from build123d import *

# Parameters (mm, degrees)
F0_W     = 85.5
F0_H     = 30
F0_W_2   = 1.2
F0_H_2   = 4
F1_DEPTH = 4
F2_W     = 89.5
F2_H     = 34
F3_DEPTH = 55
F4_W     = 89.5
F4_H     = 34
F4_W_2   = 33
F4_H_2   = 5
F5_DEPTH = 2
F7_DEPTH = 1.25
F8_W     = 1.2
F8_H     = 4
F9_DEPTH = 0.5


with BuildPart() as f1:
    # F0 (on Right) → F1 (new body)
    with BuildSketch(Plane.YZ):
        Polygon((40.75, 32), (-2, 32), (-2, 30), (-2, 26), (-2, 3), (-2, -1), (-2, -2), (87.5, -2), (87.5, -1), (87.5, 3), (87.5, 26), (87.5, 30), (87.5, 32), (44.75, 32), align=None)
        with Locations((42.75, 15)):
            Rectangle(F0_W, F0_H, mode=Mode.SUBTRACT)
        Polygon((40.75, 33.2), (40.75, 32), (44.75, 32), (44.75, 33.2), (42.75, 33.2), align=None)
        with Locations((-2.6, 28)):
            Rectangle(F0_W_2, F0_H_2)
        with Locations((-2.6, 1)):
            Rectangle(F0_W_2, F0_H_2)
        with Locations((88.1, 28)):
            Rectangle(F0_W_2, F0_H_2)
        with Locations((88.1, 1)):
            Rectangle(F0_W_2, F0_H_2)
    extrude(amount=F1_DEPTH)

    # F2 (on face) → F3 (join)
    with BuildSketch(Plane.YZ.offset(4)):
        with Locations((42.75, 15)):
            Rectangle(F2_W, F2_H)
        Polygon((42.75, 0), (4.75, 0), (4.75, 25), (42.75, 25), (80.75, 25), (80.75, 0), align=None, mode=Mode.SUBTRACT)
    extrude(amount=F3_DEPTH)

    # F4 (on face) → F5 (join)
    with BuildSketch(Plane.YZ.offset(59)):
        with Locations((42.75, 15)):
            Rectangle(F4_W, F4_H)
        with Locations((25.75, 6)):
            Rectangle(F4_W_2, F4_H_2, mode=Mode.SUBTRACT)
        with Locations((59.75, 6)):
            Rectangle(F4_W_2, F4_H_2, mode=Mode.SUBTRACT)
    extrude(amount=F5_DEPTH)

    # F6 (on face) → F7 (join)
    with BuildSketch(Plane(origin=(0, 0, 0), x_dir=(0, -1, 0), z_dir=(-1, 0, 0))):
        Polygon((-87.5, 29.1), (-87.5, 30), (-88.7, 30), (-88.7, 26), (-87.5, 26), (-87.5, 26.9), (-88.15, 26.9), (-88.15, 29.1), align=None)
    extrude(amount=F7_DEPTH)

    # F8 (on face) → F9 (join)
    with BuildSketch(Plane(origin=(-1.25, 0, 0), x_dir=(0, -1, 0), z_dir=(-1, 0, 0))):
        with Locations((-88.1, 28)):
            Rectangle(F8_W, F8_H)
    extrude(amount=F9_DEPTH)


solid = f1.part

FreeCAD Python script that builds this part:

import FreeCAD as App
import Part
import Sketcher

V = App.Vector

doc = App.newDocument("Part")
body = doc.addObject("PartDesign::Body", "Body")

# Sketch on YZ plane
sketch1 = doc.addObject("Sketcher::SketchObject", "Sketch")
body.addObject(sketch1)
sketch1.AttachmentSupport = (doc.YZ_Plane, [""])
sketch1.MapMode = "FlatFace"
sketch1.addGeometry([
    Part.LineSegment(V(-2, 32, 0), V(-2, 30, 0)),  # 0
    Part.LineSegment(V(-2, 30, 0), V(-3.2, 30, 0)),  # 1
    Part.LineSegment(V(-3.2, 30, 0), V(-3.2, 26, 0)),  # 2
    Part.LineSegment(V(-3.2, 26, 0), V(-2, 26, 0)),  # 3
    Part.LineSegment(V(-2, 26, 0), V(-2, 3, 0)),  # 4
    Part.LineSegment(V(-2, 3, 0), V(-3.2, 3, 0)),  # 5
    Part.LineSegment(V(-3.2, 3, 0), V(-3.2, -1, 0)),  # 6
    Part.LineSegment(V(-3.2, -1, 0), V(-2, -1, 0)),  # 7
    Part.LineSegment(V(-2, -1, 0), V(-2, -2, 0)),  # 8
    Part.LineSegment(V(-2, -2, 0), V(87.5, -2, 0)),  # 9
    Part.LineSegment(V(87.5, -2, 0), V(87.5, -1, 0)),  # 10
    Part.LineSegment(V(87.5, -1, 0), V(88.7, -1, 0)),  # 11
    Part.LineSegment(V(88.7, -1, 0), V(88.7, 3, 0)),  # 12
    Part.LineSegment(V(88.7, 3, 0), V(87.5, 3, 0)),  # 13
    Part.LineSegment(V(87.5, 3, 0), V(87.5, 26, 0)),  # 14
    Part.LineSegment(V(87.5, 26, 0), V(88.7, 26, 0)),  # 15
    Part.LineSegment(V(88.7, 26, 0), V(88.7, 30, 0)),  # 16
    Part.LineSegment(V(88.7, 30, 0), V(87.5, 30, 0)),  # 17
    Part.LineSegment(V(87.5, 30, 0), V(87.5, 32, 0)),  # 18
    Part.LineSegment(V(87.5, 32, 0), V(44.8, 32, 0)),  # 19
    Part.LineSegment(V(44.8, 32, 0), V(44.8, 33.2, 0)),  # 20
    Part.LineSegment(V(44.8, 33.2, 0), V(40.8, 33.2, 0)),  # 21
    Part.LineSegment(V(40.8, 33.2, 0), V(40.8, 32, 0)),  # 22
    Part.LineSegment(V(40.8, 32, 0), V(-2, 32, 0)),  # 23
    Part.LineSegment(V(85.5, 0, 0), V(0, 0, 0)),  # 24
    Part.LineSegment(V(0, 0, 0), V(0, 30, 0)),  # 25
    Part.LineSegment(V(0, 30, 0), V(85.5, 30, 0)),  # 26
    Part.LineSegment(V(85.5, 30, 0), V(85.5, 0, 0)),  # 27
], False)
sketch1.addConstraint([
    Sketcher.Constraint("Coincident", 0, 2, 1, 1),
    Sketcher.Constraint("Coincident", 1, 2, 2, 1),
    Sketcher.Constraint("Coincident", 2, 2, 3, 1),
    Sketcher.Constraint("Coincident", 3, 2, 4, 1),
    Sketcher.Constraint("Coincident", 4, 2, 5, 1),
    Sketcher.Constraint("Coincident", 5, 2, 6, 1),
    Sketcher.Constraint("Coincident", 6, 2, 7, 1),
    Sketcher.Constraint("Coincident", 7, 2, 8, 1),
    Sketcher.Constraint("Coincident", 8, 2, 9, 1),
    Sketcher.Constraint("Coincident", 9, 2, 10, 1),
    Sketcher.Constraint("Coincident", 10, 2, 11, 1),
    Sketcher.Constraint("Coincident", 11, 2, 12, 1),
    Sketcher.Constraint("Coincident", 12, 2, 13, 1),
    Sketcher.Constraint("Coincident", 13, 2, 14, 1),
    Sketcher.Constraint("Coincident", 14, 2, 15, 1),
    Sketcher.Constraint("Coincident", 15, 2, 16, 1),
    Sketcher.Constraint("Coincident", 16, 2, 17, 1),
    Sketcher.Constraint("Coincident", 17, 2, 18, 1),
    Sketcher.Constraint("Coincident", 18, 2, 19, 1),
    Sketcher.Constraint("Coincident", 19, 2, 20, 1),
    Sketcher.Constraint("Coincident", 20, 2, 21, 1),
    Sketcher.Constraint("Coincident", 21, 2, 22, 1),
    Sketcher.Constraint("Coincident", 22, 2, 23, 1),
    Sketcher.Constraint("Coincident", 23, 2, 0, 1),
    Sketcher.Constraint("Coincident", 24, 2, 25, 1),
    Sketcher.Constraint("Coincident", 25, 2, 26, 1),
    Sketcher.Constraint("Coincident", 26, 2, 27, 1),
    Sketcher.Constraint("Coincident", 27, 2, 24, 1),
    Sketcher.Constraint("Vertical", 0),
    Sketcher.Constraint("Horizontal", 1),
    Sketcher.Constraint("Vertical", 2),
    Sketcher.Constraint("Horizontal", 3),
    Sketcher.Constraint("Vertical", 4),
    Sketcher.Constraint("Horizontal", 5),
    Sketcher.Constraint("Vertical", 6),
    Sketcher.Constraint("Horizontal", 7),
    Sketcher.Constraint("Vertical", 8),
    Sketcher.Constraint("Horizontal", 9),
    Sketcher.Constraint("Vertical", 10),
    Sketcher.Constraint("Horizontal", 11),
    Sketcher.Constraint("Vertical", 12),
    Sketcher.Constraint("Horizontal", 13),
    Sketcher.Constraint("Vertical", 14),
    Sketcher.Constraint("Horizontal", 15),
    Sketcher.Constraint("Vertical", 16),
    Sketcher.Constraint("Horizontal", 17),
    Sketcher.Constraint("Vertical", 18),
    Sketcher.Constraint("Horizontal", 19),
    Sketcher.Constraint("Vertical", 20),
    Sketcher.Constraint("Horizontal", 21),
    Sketcher.Constraint("Vertical", 22),
    Sketcher.Constraint("Horizontal", 23),
    Sketcher.Constraint("Horizontal", 24),
    Sketcher.Constraint("Vertical", 25),
    Sketcher.Constraint("Horizontal", 26),
    Sketcher.Constraint("Vertical", 27),
    Sketcher.Constraint("Coincident", 24, 2, -1, 1),
    Sketcher.Constraint("Horizontal", 7, 2, 10, 2),
    Sketcher.Constraint("Horizontal", 5, 2, 12, 2),
    Sketcher.Constraint("Horizontal", 3, 2, 14, 2),
    Sketcher.Constraint("Horizontal", 1, 2, 16, 2),
    Sketcher.Constraint("Horizontal", 19, 2, 22, 2),
    Sketcher.Constraint("Horizontal", 17, 2, 25, 2),
    Sketcher.Constraint("Vertical", 0, 2, 3, 2),
    Sketcher.Constraint("Vertical", 2, 2, 5, 2),
    Sketcher.Constraint("Vertical", 4, 2, 7, 2),
    Sketcher.Constraint("Vertical", 10, 2, 13, 2),
    Sketcher.Constraint("Vertical", 12, 2, 15, 2),
    Sketcher.Constraint("Vertical", 14, 2, 17, 2),
    Sketcher.Constraint("Equal", 7, 11),
    Sketcher.Constraint("Equal", 19, 23),
    Sketcher.Constraint("Equal", 21, 2),
    Sketcher.Constraint("Equal", 2, 6),
    Sketcher.Constraint("Equal", 17, 20),
    Sketcher.Constraint("DistanceX", 21, 2, 21, 1, 4.0),
    Sketcher.Constraint("DistanceY", 0, 2, 0, 1, 2.0),
    Sketcher.Constraint("DistanceY", 4, 2, 4, 1, 23.0),
    Sketcher.Constraint("DistanceY", 8, 2, 8, 1, 1.0),
    Sketcher.Constraint("DistanceY", 25, 1, 25, 2, 30.0),
    Sketcher.Constraint("DistanceX", 1, 2, 1, 1, 1.2),
    Sketcher.Constraint("DistanceX", 9, 1, 9, 2, 89.5),
    Sketcher.Constraint("DistanceX", 24, 2, 24, 1, 85.5),
    Sketcher.Constraint("DistanceX", 0, 2, -1, 1, 2.0),
])
pad1 = doc.addObject("PartDesign::Pad", "Pad")
body.addObject(pad1)
pad1.Profile = sketch1
pad1.Length = 4

# Sketch on YZ plane
sketch2 = doc.addObject("Sketcher::SketchObject", "Sketch001")
body.addObject(sketch2)
sketch2.AttachmentSupport = (doc.YZ_Plane, [""])
sketch2.MapMode = "FlatFace"
sketch2.AttachmentOffset = App.Placement(V(0, 0, 4), App.Rotation())
sketch2.addGeometry([
    Part.LineSegment(V(-2, 32, 0), V(-2, -2, 0)),  # 0
    Part.LineSegment(V(-2, -2, 0), V(88, -2, 0)),  # 1
    Part.LineSegment(V(88, -2, 0), V(88, 32, 0)),  # 2
    Part.LineSegment(V(88, 32, 0), V(-2, 32, 0)),  # 3
    Part.LineSegment(V(81, 0, 0), V(5, 0, 0)),  # 4
    Part.LineSegment(V(5, 0, 0), V(5, 25, 0)),  # 5
    Part.LineSegment(V(5, 25, 0), V(81, 25, 0)),  # 6
    Part.LineSegment(V(81, 25, 0), V(81, 0, 0)),  # 7
], False)
sketch2.addConstraint([
    Sketcher.Constraint("Coincident", 0, 2, 1, 1),
    Sketcher.Constraint("Coincident", 1, 2, 2, 1),
    Sketcher.Constraint("Coincident", 2, 2, 3, 1),
    Sketcher.Constraint("Coincident", 3, 2, 0, 1),
    Sketcher.Constraint("Coincident", 4, 2, 5, 1),
    Sketcher.Constraint("Coincident", 5, 2, 6, 1),
    Sketcher.Constraint("Coincident", 6, 2, 7, 1),
    Sketcher.Constraint("Coincident", 7, 2, 4, 1),
    Sketcher.Constraint("Vertical", 0),
    Sketcher.Constraint("Horizontal", 1),
    Sketcher.Constraint("Vertical", 2),
    Sketcher.Constraint("Horizontal", 3),
    Sketcher.Constraint("Horizontal", 4),
    Sketcher.Constraint("Vertical", 5),
    Sketcher.Constraint("Horizontal", 6),
    Sketcher.Constraint("Vertical", 7),
    Sketcher.Constraint("PointOnObject", 4, 2, -1),
    Sketcher.Constraint("DistanceX", 4, 2, 4, 1, 76.0),
    Sketcher.Constraint("DistanceY", 0, 2, 0, 1, 34.0),
    Sketcher.Constraint("DistanceY", 5, 1, 5, 2, 25.0),
    Sketcher.Constraint("DistanceX", 1, 1, 1, 2, 89.5),
    Sketcher.Constraint("DistanceX", 0, 2, -1, 1, 2.0),
    Sketcher.Constraint("DistanceY", 0, 2, -1, 1, 2.0),
    Sketcher.Constraint("DistanceX", -1, 1, 4, 2, 4.75),
])
pad2 = doc.addObject("PartDesign::Pad", "Pad001")
body.addObject(pad2)
pad2.Profile = sketch2
pad2.Length = 55

# Sketch on YZ plane
sketch3 = doc.addObject("Sketcher::SketchObject", "Sketch002")
body.addObject(sketch3)
sketch3.AttachmentSupport = (doc.YZ_Plane, [""])
sketch3.MapMode = "FlatFace"
sketch3.AttachmentOffset = App.Placement(V(0, 0, 59), App.Rotation())
sketch3.addGeometry([
    Part.LineSegment(V(-2, 32, 0), V(-2, -2, 0)),  # 0
    Part.LineSegment(V(-2, -2, 0), V(88, -2, 0)),  # 1
    Part.LineSegment(V(88, -2, 0), V(88, 32, 0)),  # 2
    Part.LineSegment(V(88, 32, 0), V(-2, 32, 0)),  # 3
    Part.LineSegment(V(42, 4, 0), V(9, 4, 0)),  # 4
    Part.LineSegment(V(9, 4, 0), V(9, 8, 0)),  # 5
    Part.LineSegment(V(9, 8, 0), V(42, 8, 0)),  # 6
    Part.LineSegment(V(42, 8, 0), V(42, 4, 0)),  # 7
    Part.LineSegment(V(76, 4, 0), V(43, 4, 0)),  # 8
    Part.LineSegment(V(43, 4, 0), V(43, 8, 0)),  # 9
    Part.LineSegment(V(43, 8, 0), V(76, 8, 0)),  # 10
    Part.LineSegment(V(76, 8, 0), V(76, 4, 0)),  # 11
], False)
sketch3.addConstraint([
    Sketcher.Constraint("Coincident", 0, 2, 1, 1),
    Sketcher.Constraint("Coincident", 1, 2, 2, 1),
    Sketcher.Constraint("Coincident", 2, 2, 3, 1),
    Sketcher.Constraint("Coincident", 3, 2, 0, 1),
    Sketcher.Constraint("Coincident", 4, 2, 5, 1),
    Sketcher.Constraint("Coincident", 5, 2, 6, 1),
    Sketcher.Constraint("Coincident", 6, 2, 7, 1),
    Sketcher.Constraint("Coincident", 7, 2, 4, 1),
    Sketcher.Constraint("Coincident", 8, 2, 9, 1),
    Sketcher.Constraint("Coincident", 9, 2, 10, 1),
    Sketcher.Constraint("Coincident", 10, 2, 11, 1),
    Sketcher.Constraint("Coincident", 11, 2, 8, 1),
    Sketcher.Constraint("Vertical", 0),
    Sketcher.Constraint("Horizontal", 1),
    Sketcher.Constraint("Vertical", 2),
    Sketcher.Constraint("Horizontal", 3),
    Sketcher.Constraint("Horizontal", 4),
    Sketcher.Constraint("Vertical", 5),
    Sketcher.Constraint("Horizontal", 6),
    Sketcher.Constraint("Vertical", 7),
    Sketcher.Constraint("Horizontal", 8),
    Sketcher.Constraint("Vertical", 9),
    Sketcher.Constraint("Horizontal", 10),
    Sketcher.Constraint("Vertical", 11),
    Sketcher.Constraint("Horizontal", 7, 2, 8, 2),
    Sketcher.Constraint("Horizontal", 6, 2, 9, 2),
    Sketcher.Constraint("Equal", 6, 8),
    Sketcher.Constraint("DistanceX", 4, 2, 4, 1, 33.0),
    Sketcher.Constraint("DistanceY", 0, 2, 0, 1, 34.0),
    Sketcher.Constraint("DistanceY", 5, 1, 5, 2, 5.0),
    Sketcher.Constraint("DistanceX", 1, 1, 1, 2, 89.5),
    Sketcher.Constraint("DistanceX", 0, 2, -1, 1, 2.0),
    Sketcher.Constraint("DistanceY", 0, 2, -1, 1, 2.0),
    Sketcher.Constraint("DistanceX", 7, 2, 8, 2, 1.0),
    Sketcher.Constraint("DistanceY", -1, 1, 4, 2, 3.5),
    Sketcher.Constraint("DistanceX", -1, 1, 4, 2, 9.25),
])
pad3 = doc.addObject("PartDesign::Pad", "Pad002")
body.addObject(pad3)
pad3.Profile = sketch3
pad3.Length = 2

# Sketch on YZ plane
sketch4 = doc.addObject("Sketcher::SketchObject", "Sketch003")
body.addObject(sketch4)
sketch4.AttachmentSupport = (doc.YZ_Plane, [""])
sketch4.MapMode = "FlatFace"
sketch4.addGeometry([
    Part.LineSegment(V(87.5, 29.1, 0), V(87.5, 30, 0)),  # 0
    Part.LineSegment(V(87.5, 30, 0), V(88.7, 30, 0)),  # 1
    Part.LineSegment(V(88.7, 30, 0), V(88.7, 26, 0)),  # 2
    Part.LineSegment(V(88.7, 26, 0), V(87.5, 26, 0)),  # 3
    Part.LineSegment(V(87.5, 26, 0), V(87.5, 26.9, 0)),  # 4
    Part.LineSegment(V(87.5, 26.9, 0), V(88.2, 26.9, 0)),  # 5
    Part.LineSegment(V(88.2, 26.9, 0), V(88.2, 29.1, 0)),  # 6
    Part.LineSegment(V(88.2, 29.1, 0), V(87.5, 29.1, 0)),  # 7
], False)
sketch4.addConstraint([
    Sketcher.Constraint("Coincident", 0, 2, 1, 1),
    Sketcher.Constraint("Coincident", 1, 2, 2, 1),
    Sketcher.Constraint("Coincident", 2, 2, 3, 1),
    Sketcher.Constraint("Coincident", 3, 2, 4, 1),
    Sketcher.Constraint("Coincident", 4, 2, 5, 1),
    Sketcher.Constraint("Coincident", 5, 2, 6, 1),
    Sketcher.Constraint("Coincident", 6, 2, 7, 1),
    Sketcher.Constraint("Coincident", 7, 2, 0, 1),
    Sketcher.Constraint("Vertical", 0),
    Sketcher.Constraint("Horizontal", 1),
    Sketcher.Constraint("Vertical", 2),
    Sketcher.Constraint("Horizontal", 3),
    Sketcher.Constraint("Vertical", 4),
    Sketcher.Constraint("Horizontal", 5),
    Sketcher.Constraint("Vertical", 6),
    Sketcher.Constraint("Horizontal", 7),
    Sketcher.Constraint("Vertical", 0, 2, 3, 2),
    Sketcher.Constraint("Equal", 0, 4),
    Sketcher.Constraint("DistanceY", 2, 2, 2, 1, 4.0),
    Sketcher.Constraint("DistanceX", 1, 1, 1, 2, 1.2),
    Sketcher.Constraint("DistanceY", 0, 1, 0, 2, 0.9),
    Sketcher.Constraint("DistanceY", -1, 1, 0, 2, 30.0),
    Sketcher.Constraint("DistanceX", 5, 1, 5, 2, 0.65),
    Sketcher.Constraint("DistanceX", -1, 1, 0, 2, 87.5),
])
pad4 = doc.addObject("PartDesign::Pad", "Pad003")
body.addObject(pad4)
pad4.Profile = sketch4
pad4.Length = 1.25
pad4.Reversed = True

# Sketch on YZ plane
sketch5 = doc.addObject("Sketcher::SketchObject", "Sketch004")
body.addObject(sketch5)
sketch5.AttachmentSupport = (doc.YZ_Plane, [""])
sketch5.MapMode = "FlatFace"
sketch5.AttachmentOffset = App.Placement(V(0, 0, -1.25), App.Rotation())
sketch5.addGeometry([
    Part.LineSegment(V(88.7, 30, 0), V(88.7, 26, 0)),
    Part.LineSegment(V(88.7, 26, 0), V(87.5, 26, 0)),
    Part.LineSegment(V(87.5, 26, 0), V(87.5, 30, 0)),
    Part.LineSegment(V(87.5, 30, 0), V(88.7, 30, 0)),
], False)
sketch5.addConstraint([
    Sketcher.Constraint("Coincident", 0, 2, 1, 1),
    Sketcher.Constraint("Coincident", 1, 2, 2, 1),
    Sketcher.Constraint("Coincident", 2, 2, 3, 1),
    Sketcher.Constraint("Coincident", 3, 2, 0, 1),
    Sketcher.Constraint("Vertical", 0),
    Sketcher.Constraint("Horizontal", 1),
    Sketcher.Constraint("Vertical", 2),
    Sketcher.Constraint("Horizontal", 3),
    Sketcher.Constraint("DistanceY", 0, 2, 0, 1, 4.0),
    Sketcher.Constraint("DistanceX", 1, 2, 1, 1, 1.2),
    Sketcher.Constraint("DistanceY", -1, 1, 0, 2, 26.0),
    Sketcher.Constraint("DistanceX", -1, 1, 0, 2, 88.7),
])
pad5 = doc.addObject("PartDesign::Pad", "Pad004")
body.addObject(pad5)
pad5.Profile = sketch5
pad5.Length = 0.5
pad5.Reversed = True

doc.recompute()
